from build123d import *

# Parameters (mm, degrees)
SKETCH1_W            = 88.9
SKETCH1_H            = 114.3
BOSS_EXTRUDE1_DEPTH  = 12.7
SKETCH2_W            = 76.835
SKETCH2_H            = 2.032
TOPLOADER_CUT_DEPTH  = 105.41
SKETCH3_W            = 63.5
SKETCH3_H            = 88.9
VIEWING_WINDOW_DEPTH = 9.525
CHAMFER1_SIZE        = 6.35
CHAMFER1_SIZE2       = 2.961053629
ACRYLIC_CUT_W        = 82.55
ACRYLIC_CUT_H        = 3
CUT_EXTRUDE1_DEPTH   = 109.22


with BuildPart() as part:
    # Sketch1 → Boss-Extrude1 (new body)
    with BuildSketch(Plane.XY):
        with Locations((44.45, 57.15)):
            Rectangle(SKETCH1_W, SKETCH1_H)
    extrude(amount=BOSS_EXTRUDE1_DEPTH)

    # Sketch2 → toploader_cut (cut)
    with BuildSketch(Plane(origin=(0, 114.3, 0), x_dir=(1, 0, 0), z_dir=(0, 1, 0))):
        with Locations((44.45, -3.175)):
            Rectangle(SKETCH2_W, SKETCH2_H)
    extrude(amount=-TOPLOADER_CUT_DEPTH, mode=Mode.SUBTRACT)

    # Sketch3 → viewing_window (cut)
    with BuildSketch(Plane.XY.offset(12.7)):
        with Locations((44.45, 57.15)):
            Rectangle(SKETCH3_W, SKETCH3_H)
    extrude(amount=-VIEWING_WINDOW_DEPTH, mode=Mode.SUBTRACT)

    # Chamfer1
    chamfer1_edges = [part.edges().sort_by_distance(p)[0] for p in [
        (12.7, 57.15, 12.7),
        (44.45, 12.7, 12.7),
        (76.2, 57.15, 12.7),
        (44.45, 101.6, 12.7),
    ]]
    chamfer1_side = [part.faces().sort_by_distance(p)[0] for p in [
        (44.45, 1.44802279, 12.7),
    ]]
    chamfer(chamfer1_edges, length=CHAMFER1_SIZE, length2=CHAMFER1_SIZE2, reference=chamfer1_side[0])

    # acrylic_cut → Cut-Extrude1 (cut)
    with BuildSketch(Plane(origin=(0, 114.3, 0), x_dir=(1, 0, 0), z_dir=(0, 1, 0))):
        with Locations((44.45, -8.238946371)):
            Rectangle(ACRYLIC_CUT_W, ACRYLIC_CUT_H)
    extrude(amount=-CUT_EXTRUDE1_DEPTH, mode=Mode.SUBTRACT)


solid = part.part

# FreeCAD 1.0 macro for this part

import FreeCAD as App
import Part
import Sketcher
from FreeCAD import Vector
Q = App.Units.Quantity


def edges_at(feature, points):
    """Names of the edges that pass closest to the given points."""
    edges = feature.Shape.Edges
    near = lambda p: min(range(len(edges)), key=lambda i: edges[i].distToShape(Part.Vertex(*p))[0])
    return sorted({f"Edge{near(p) + 1}" for p in points})

doc = App.newDocument("Part")
body = doc.addObject("PartDesign::Body", "Body")

# Sketch on XY plane
sketch1 = body.newObject("Sketcher::SketchObject", "Sketch")
sketch1.AttachmentSupport = (doc.getObject("XY_Plane"), [""])
sketch1.MapMode = "FlatFace"
sketch1.addGeometry(Part.LineSegment(Vector(0, 114, 0), Vector(0, 0, 0)), False)
sketch1.addGeometry(Part.LineSegment(Vector(0, 0, 0), Vector(89, 0, 0)), False)
sketch1.addGeometry(Part.LineSegment(Vector(89, 0, 0), Vector(89, 114, 0)), False)
sketch1.addGeometry(Part.LineSegment(Vector(89, 114, 0), Vector(0, 114, 0)), False)
sketch1.addConstraint(Sketcher.Constraint("Coincident", 0, 2, 1, 1))
sketch1.addConstraint(Sketcher.Constraint("Coincident", 1, 2, 2, 1))
sketch1.addConstraint(Sketcher.Constraint("Coincident", 2, 2, 3, 1))
sketch1.addConstraint(Sketcher.Constraint("Coincident", 3, 2, 0, 1))
sketch1.addConstraint(Sketcher.Constraint("Vertical", 0))
sketch1.addConstraint(Sketcher.Constraint("Horizontal", 1))
sketch1.addConstraint(Sketcher.Constraint("Vertical", 2))
sketch1.addConstraint(Sketcher.Constraint("Horizontal", 3))
sketch1.addConstraint(Sketcher.Constraint("Coincident", 0, 2, -1, 1))
sketch1.addConstraint(Sketcher.Constraint("DistanceX", 1, 1, 1, 2, Q("3.5 in")))
sketch1.addConstraint(Sketcher.Constraint("DistanceY", 0, 2, 0, 1, Q("4.5 in")))
pad1 = body.newObject("PartDesign::Pad", "Pad")
pad1.Profile = sketch1
pad1.Length = Q("0.5 in")

# Sketch on XZ plane
sketch2 = body.newObject("Sketcher::SketchObject", "Sketch001")
sketch2.AttachmentSupport = (doc.getObject("XZ_Plane"), [""])
sketch2.MapMode = "FlatFace"
sketch2.AttachmentOffset = App.Placement(Vector(0, 0, -4.5 * 25.4), App.Rotation())
sketch2.addGeometry(Part.LineSegment(Vector(6, 2.2, 0), Vector(6, 4.2, 0)), False)
sketch2.addGeometry(Part.LineSegment(Vector(6, 4.2, 0), Vector(82.9, 4.2, 0)), False)
sketch2.addGeometry(Part.LineSegment(Vector(82.9, 4.2, 0), Vector(82.9, 2.2, 0)), False)
sketch2.addGeometry(Part.LineSegment(Vector(82.9, 2.2, 0), Vector(6, 2.2, 0)), False)
sketch2.addConstraint(Sketcher.Constraint("Coincident", 0, 2, 1, 1))
sketch2.addConstraint(Sketcher.Constraint("Coincident", 1, 2, 2, 1))
sketch2.addConstraint(Sketcher.Constraint("Coincident", 2, 2, 3, 1))
sketch2.addConstraint(Sketcher.Constraint("Coincident", 3, 2, 0, 1))
sketch2.addConstraint(Sketcher.Constraint("Vertical", 0))
sketch2.addConstraint(Sketcher.Constraint("Horizontal", 1))
sketch2.addConstraint(Sketcher.Constraint("Vertical", 2))
sketch2.addConstraint(Sketcher.Constraint("Horizontal", 3))
sketch2.addConstraint(Sketcher.Constraint("DistanceY", 0, 1, 0, 2, Q("0.08 in")))
sketch2.addConstraint(Sketcher.Constraint("DistanceX", 1, 1, 1, 2, Q("3.025 in")))
sketch2.addConstraint(Sketcher.Constraint("DistanceY", -1, 1, 0, 2, Q("0.165 in")))
sketch2.addConstraint(Sketcher.Constraint("DistanceX", -1, 1, 0, 2, Q("0.2375 in")))
pocket1 = body.newObject("PartDesign::Pocket", "Pocket")
pocket1.Profile = sketch2
pocket1.Length = Q("4.15 in")
pocket1.Reversed = True

# Sketch on XY plane
sketch3 = body.newObject("Sketcher::SketchObject", "Sketch002")
sketch3.AttachmentSupport = (doc.getObject("XY_Plane"), [""])
sketch3.MapMode = "FlatFace"
sketch3.AttachmentOffset = App.Placement(Vector(0, 0, 0.5 * 25.4), App.Rotation())
sketch3.addGeometry(Part.LineSegment(Vector(13, 102, 0), Vector(13, 13, 0)), False)
sketch3.addGeometry(Part.LineSegment(Vector(13, 13, 0), Vector(76, 13, 0)), False)
sketch3.addGeometry(Part.LineSegment(Vector(76, 13, 0), Vector(76, 102, 0)), False)
sketch3.addGeometry(Part.LineSegment(Vector(76, 102, 0), Vector(13, 102, 0)), False)
sketch3.addConstraint(Sketcher.Constraint("Coincident", 0, 2, 1, 1))
sketch3.addConstraint(Sketcher.Constraint("Coincident", 1, 2, 2, 1))
sketch3.addConstraint(Sketcher.Constraint("Coincident", 2, 2, 3, 1))
sketch3.addConstraint(Sketcher.Constraint("Coincident", 3, 2, 0, 1))
sketch3.addConstraint(Sketcher.Constraint("Vertical", 0))
sketch3.addConstraint(Sketcher.Constraint("Horizontal", 1))
sketch3.addConstraint(Sketcher.Constraint("Vertical", 2))
sketch3.addConstraint(Sketcher.Constraint("Horizontal", 3))
sketch3.addConstraint(Sketcher.Constraint("DistanceX", 1, 1, 1, 2, Q("2.5 in")))
sketch3.addConstraint(Sketcher.Constraint("DistanceY", 0, 2, 0, 1, Q("3.5 in")))
sketch3.addConstraint(Sketcher.Constraint("DistanceX", -1, 1, 1, 2, Q("3 in")))
sketch3.addConstraint(Sketcher.Constraint("DistanceY", -1, 1, 2, 2, Q("4 in")))
pocket2 = body.newObject("PartDesign::Pocket", "Pocket001")
pocket2.Profile = sketch3
pocket2.Length = Q("0.375 in")
doc.recompute()

chamfer = body.newObject("PartDesign::Chamfer", "Chamfer")
chamfer.Base = (pocket2, edges_at(pocket2, [
    (12.7, 57.15, 12.7),
    (44.45, 12.7, 12.7),
    (76.2, 57.15, 12.7),
    (44.45, 101.6, 12.7),
]))
chamfer.ChamferType = "Two distances"
chamfer.Size = Q("0.25 in")
chamfer.Size2 = 2.961054

# Sketch on XZ plane
sketch4 = body.newObject("Sketcher::SketchObject", "Sketch003")
sketch4.AttachmentSupport = (doc.getObject("XZ_Plane"), [""])
sketch4.MapMode = "FlatFace"
sketch4.AttachmentOffset = App.Placement(Vector(0, 0, -4.5 * 25.4), App.Rotation())
sketch4.addGeometry(Part.LineSegment(Vector(3.2, 6.7, 0), Vector(3.2, 9.7, 0)), False)
sketch4.addGeometry(Part.LineSegment(Vector(3.2, 9.7, 0), Vector(85.7, 9.7, 0)), False)
sketch4.addGeometry(Part.LineSegment(Vector(85.7, 9.7, 0), Vector(85.7, 6.7, 0)), False)
sketch4.addGeometry(Part.LineSegment(Vector(85.7, 6.7, 0), Vector(3.2, 6.7, 0)), False)
sketch4.addConstraint(Sketcher.Constraint("Coincident", 0, 2, 1, 1))
sketch4.addConstraint(Sketcher.Constraint("Coincident", 1, 2, 2, 1))
sketch4.addConstraint(Sketcher.Constraint("Coincident", 2, 2, 3, 1))
sketch4.addConstraint(Sketcher.Constraint("Coincident", 3, 2, 0, 1))
sketch4.addConstraint(Sketcher.Constraint("Vertical", 0))
sketch4.addConstraint(Sketcher.Constraint("Horizontal", 1))
sketch4.addConstraint(Sketcher.Constraint("Vertical", 2))
sketch4.addConstraint(Sketcher.Constraint("Horizontal", 3))
sketch4.addConstraint(Sketcher.Constraint("DistanceX", 1, 1, 1, 2, Q("3.25 in")))
sketch4.addConstraint(Sketcher.Constraint("DistanceX", -1, 1, 0, 2, Q("0.125 in")))
sketch4.addConstraint(Sketcher.Constraint("DistanceY", 0, 1, 0, 2, 3.0))
sketch4.addConstraint(Sketcher.Constraint("DistanceY", -1, 1, 0, 2, 9.738946))
pocket3 = body.newObject("PartDesign::Pocket", "Pocket002")
pocket3.Profile = sketch4
pocket3.Length = Q("4.3 in")
pocket3.Reversed = True

doc.recompute()
